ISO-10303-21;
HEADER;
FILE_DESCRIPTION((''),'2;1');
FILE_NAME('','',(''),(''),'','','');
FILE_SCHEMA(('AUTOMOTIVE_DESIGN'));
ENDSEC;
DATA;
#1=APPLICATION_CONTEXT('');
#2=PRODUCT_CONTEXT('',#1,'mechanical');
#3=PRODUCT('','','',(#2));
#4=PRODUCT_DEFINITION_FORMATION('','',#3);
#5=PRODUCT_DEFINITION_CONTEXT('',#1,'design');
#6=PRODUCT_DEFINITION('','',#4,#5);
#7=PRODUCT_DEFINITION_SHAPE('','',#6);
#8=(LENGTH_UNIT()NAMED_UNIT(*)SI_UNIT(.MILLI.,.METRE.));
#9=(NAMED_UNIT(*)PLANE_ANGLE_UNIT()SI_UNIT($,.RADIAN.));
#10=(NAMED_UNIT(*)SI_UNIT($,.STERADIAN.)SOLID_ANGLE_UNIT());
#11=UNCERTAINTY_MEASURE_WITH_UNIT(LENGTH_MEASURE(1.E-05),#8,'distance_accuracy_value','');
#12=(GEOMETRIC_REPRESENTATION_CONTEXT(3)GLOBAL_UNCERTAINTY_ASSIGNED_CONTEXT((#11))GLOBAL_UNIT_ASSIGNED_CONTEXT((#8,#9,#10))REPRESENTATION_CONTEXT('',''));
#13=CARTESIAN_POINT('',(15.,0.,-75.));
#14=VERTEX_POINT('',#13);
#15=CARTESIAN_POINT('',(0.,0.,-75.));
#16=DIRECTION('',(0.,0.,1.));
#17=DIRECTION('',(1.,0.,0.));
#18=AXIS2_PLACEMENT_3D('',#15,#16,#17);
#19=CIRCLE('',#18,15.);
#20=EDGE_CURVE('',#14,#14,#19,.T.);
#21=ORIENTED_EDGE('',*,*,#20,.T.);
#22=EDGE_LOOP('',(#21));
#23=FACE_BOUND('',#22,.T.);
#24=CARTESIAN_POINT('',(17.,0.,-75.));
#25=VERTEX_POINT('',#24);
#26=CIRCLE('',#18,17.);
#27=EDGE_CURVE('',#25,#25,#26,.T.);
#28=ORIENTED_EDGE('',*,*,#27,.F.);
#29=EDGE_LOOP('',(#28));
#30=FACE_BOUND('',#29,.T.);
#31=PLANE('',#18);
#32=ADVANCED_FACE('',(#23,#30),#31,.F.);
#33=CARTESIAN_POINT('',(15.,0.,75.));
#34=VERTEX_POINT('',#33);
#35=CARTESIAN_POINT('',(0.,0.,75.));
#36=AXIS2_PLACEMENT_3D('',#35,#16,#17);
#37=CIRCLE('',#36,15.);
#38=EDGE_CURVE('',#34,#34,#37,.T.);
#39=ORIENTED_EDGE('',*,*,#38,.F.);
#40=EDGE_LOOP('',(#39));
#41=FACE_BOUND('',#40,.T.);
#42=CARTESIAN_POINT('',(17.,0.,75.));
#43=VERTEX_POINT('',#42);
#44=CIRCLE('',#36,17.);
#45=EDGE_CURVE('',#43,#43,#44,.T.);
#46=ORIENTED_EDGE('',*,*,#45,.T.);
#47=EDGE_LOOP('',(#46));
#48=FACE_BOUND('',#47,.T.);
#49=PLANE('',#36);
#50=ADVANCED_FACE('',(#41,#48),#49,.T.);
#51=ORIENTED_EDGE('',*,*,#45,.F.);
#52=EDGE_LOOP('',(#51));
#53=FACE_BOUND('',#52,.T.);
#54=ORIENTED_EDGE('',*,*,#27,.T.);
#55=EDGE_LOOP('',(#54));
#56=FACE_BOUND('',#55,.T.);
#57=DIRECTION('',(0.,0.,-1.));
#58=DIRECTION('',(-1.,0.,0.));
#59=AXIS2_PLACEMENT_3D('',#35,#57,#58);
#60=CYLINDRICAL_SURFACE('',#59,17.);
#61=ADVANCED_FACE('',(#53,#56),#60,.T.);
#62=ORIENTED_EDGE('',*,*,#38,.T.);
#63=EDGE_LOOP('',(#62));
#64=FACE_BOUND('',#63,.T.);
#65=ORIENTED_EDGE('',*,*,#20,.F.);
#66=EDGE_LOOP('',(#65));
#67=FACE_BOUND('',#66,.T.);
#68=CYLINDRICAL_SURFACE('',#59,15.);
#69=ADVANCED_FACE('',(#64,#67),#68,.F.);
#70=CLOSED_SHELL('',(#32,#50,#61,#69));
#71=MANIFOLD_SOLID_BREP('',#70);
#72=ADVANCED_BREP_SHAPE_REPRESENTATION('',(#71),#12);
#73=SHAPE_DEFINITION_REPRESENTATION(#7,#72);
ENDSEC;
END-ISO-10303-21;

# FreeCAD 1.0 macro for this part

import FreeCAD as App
import Part
import Sketcher

V = App.Vector
Q = App.Units.Quantity

doc = App.newDocument("Part")
body = doc.addObject("PartDesign::Body", "Body")

# Sketch on XY plane
sketch1 = body.newObject("Sketcher::SketchObject", "Sketch")
sketch1.AttachmentSupport = (doc.getObject("XY_Plane"), [""])
sketch1.MapMode = "FlatFace"
sketch1.addGeometry([
    Part.Circle(V(0, 0, 0), V(0, 0, 1), 17),
    Part.Circle(V(0, 0, 0), V(0, 0, 1), 15),
], False)
sketch1.addConstraint([
    Sketcher.Constraint("Coincident", 0, 3, -1, 1),
    Sketcher.Constraint("Coincident", 1, 3, -1, 1),
    Sketcher.Constraint("Diameter", 0, Q("34 mm")),
    Sketcher.Constraint("Diameter", 1, Q("30 mm")),
])
pad1 = body.newObject("PartDesign::Pad", "Pad")
pad1.Profile = sketch1
pad1.Length = 150
pad1.Midplane = True

doc.recompute()
